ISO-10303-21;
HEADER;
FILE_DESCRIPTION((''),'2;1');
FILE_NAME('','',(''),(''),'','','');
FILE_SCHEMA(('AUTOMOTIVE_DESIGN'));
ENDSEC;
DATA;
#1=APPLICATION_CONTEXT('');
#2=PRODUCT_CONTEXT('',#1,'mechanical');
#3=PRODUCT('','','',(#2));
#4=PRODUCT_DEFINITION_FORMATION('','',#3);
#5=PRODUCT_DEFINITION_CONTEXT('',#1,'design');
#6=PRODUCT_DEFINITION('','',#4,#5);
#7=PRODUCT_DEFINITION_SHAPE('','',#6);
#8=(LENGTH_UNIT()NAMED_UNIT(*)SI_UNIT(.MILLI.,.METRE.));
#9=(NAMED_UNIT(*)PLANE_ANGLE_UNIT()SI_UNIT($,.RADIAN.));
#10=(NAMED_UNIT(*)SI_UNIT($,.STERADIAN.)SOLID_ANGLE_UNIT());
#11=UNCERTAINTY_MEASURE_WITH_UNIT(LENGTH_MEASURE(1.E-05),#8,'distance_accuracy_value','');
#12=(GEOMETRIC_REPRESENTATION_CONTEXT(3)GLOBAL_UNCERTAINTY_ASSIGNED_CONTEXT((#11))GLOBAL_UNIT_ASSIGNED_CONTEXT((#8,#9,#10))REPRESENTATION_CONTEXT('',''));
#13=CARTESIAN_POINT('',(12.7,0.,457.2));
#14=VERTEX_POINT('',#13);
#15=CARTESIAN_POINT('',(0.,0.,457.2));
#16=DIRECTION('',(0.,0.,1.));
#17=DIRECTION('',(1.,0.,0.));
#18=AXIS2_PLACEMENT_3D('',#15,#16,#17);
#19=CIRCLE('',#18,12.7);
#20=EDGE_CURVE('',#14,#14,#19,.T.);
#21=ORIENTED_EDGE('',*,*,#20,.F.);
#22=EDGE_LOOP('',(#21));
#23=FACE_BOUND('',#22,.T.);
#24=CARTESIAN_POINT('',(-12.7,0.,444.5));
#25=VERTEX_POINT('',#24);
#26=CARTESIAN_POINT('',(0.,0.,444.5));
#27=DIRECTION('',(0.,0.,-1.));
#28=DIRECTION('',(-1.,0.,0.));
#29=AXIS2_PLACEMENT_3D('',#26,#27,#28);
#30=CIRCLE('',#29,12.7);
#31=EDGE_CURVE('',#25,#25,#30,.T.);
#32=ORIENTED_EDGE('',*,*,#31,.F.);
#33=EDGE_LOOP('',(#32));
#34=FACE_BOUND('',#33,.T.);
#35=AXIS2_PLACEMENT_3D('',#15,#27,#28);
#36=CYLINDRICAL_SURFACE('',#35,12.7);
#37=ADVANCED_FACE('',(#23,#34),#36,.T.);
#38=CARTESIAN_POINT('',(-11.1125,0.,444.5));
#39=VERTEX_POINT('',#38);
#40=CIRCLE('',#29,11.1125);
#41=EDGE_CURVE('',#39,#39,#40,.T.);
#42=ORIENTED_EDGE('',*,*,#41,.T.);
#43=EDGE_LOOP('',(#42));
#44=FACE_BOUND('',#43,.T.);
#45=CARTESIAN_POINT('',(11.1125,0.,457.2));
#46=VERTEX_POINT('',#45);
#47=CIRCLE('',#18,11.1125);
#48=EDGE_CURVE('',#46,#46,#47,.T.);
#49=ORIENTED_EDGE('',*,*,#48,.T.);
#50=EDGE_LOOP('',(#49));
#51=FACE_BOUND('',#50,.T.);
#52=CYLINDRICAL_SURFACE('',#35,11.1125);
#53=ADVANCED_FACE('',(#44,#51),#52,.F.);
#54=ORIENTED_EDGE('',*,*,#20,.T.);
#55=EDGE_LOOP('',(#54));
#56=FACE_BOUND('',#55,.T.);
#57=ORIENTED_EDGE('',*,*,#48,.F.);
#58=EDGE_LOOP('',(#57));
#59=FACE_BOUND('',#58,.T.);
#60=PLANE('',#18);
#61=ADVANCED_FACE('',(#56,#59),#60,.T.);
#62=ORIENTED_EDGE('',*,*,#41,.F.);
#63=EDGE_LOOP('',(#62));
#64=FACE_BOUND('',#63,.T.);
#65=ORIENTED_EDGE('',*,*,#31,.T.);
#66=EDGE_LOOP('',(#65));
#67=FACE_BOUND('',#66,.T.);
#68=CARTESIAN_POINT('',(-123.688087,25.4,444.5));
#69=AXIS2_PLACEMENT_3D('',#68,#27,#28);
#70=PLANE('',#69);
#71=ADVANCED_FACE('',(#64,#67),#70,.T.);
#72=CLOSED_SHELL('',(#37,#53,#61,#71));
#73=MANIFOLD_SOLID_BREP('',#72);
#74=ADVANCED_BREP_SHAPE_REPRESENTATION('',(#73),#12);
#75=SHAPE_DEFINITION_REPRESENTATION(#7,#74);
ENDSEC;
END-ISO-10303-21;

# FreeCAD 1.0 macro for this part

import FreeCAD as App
import Part
import Sketcher

V = App.Vector
Q = App.Units.Quantity


def add_polygon(sketch, points):
    """Adds a closed chain of lines whose ends are joined by coincident constraints."""
    first, n = sketch.GeometryCount, len(points)
    for a, b in zip(points, points[1:] + points[:1]):
        sketch.addGeometry(Part.LineSegment(App.Vector(*a, 0), App.Vector(*b, 0)), False)
    for i in range(n):
        sketch.addConstraint(Sketcher.Constraint("Coincident", first + i, 2, first + (i + 1) % n, 1))

doc = App.newDocument("Part")
body = doc.addObject("PartDesign::Body", "Body")

# Sketch on XY plane
sketch1 = body.newObject("Sketcher::SketchObject", "Sketch")
sketch1.AttachmentSupport = (doc.getObject("XY_Plane"), [""])
sketch1.MapMode = "FlatFace"
sketch1.addGeometry(Part.Circle(V(0, 0, 0), V(0, 0, 1), 13), False)
sketch1.addGeometry(Part.Circle(V(0, 0, 0), V(0, 0, 1), 11), False)
sketch1.addConstraint(Sketcher.Constraint("Coincident", 0, 3, -1, 1))
sketch1.addConstraint(Sketcher.Constraint("Coincident", 1, 3, -1, 1))
sketch1.addConstraint(Sketcher.Constraint("Diameter", 0, Q("1 in")))
sketch1.addConstraint(Sketcher.Constraint("Diameter", 1, Q("0.875 in")))
pad1 = body.newObject("PartDesign::Pad", "Pad")
pad1.Profile = sketch1
pad1.Length = Q("18 in")

# Sketch on XZ plane
sketch2 = body.newObject("Sketcher::SketchObject", "Sketch001")
sketch2.AttachmentSupport = (doc.getObject("XZ_Plane"), [""])
sketch2.MapMode = "FlatFace"
add_polygon(sketch2, [(-124, -59), (-124, 444), (179, 444), (179, -59)])  # lines 0-3
sketch2.addConstraint(Sketcher.Constraint("Vertical", 0))
sketch2.addConstraint(Sketcher.Constraint("Horizontal", 1))
sketch2.addConstraint(Sketcher.Constraint("Vertical", 2))
sketch2.addConstraint(Sketcher.Constraint("Horizontal", 3))
sketch2.addConstraint(Sketcher.Constraint("DistanceY", -1, 1, 0, 2, Q("17.5 in")))
sketch2.addConstraint(Sketcher.Constraint("DistanceX", 1, 1, 1, 2, 302.505045))
sketch2.addConstraint(Sketcher.Constraint("DistanceY", 0, 1, 0, 2, 503.385334))
sketch2.addConstraint(Sketcher.Constraint("DistanceX", 0, 2, -1, 1, 123.688087))
pocket1 = body.newObject("PartDesign::Pocket", "Pocket")
pocket1.Profile = sketch2
pocket1.Type = "ThroughAll"
pocket1.Midplane = True

doc.recompute()
